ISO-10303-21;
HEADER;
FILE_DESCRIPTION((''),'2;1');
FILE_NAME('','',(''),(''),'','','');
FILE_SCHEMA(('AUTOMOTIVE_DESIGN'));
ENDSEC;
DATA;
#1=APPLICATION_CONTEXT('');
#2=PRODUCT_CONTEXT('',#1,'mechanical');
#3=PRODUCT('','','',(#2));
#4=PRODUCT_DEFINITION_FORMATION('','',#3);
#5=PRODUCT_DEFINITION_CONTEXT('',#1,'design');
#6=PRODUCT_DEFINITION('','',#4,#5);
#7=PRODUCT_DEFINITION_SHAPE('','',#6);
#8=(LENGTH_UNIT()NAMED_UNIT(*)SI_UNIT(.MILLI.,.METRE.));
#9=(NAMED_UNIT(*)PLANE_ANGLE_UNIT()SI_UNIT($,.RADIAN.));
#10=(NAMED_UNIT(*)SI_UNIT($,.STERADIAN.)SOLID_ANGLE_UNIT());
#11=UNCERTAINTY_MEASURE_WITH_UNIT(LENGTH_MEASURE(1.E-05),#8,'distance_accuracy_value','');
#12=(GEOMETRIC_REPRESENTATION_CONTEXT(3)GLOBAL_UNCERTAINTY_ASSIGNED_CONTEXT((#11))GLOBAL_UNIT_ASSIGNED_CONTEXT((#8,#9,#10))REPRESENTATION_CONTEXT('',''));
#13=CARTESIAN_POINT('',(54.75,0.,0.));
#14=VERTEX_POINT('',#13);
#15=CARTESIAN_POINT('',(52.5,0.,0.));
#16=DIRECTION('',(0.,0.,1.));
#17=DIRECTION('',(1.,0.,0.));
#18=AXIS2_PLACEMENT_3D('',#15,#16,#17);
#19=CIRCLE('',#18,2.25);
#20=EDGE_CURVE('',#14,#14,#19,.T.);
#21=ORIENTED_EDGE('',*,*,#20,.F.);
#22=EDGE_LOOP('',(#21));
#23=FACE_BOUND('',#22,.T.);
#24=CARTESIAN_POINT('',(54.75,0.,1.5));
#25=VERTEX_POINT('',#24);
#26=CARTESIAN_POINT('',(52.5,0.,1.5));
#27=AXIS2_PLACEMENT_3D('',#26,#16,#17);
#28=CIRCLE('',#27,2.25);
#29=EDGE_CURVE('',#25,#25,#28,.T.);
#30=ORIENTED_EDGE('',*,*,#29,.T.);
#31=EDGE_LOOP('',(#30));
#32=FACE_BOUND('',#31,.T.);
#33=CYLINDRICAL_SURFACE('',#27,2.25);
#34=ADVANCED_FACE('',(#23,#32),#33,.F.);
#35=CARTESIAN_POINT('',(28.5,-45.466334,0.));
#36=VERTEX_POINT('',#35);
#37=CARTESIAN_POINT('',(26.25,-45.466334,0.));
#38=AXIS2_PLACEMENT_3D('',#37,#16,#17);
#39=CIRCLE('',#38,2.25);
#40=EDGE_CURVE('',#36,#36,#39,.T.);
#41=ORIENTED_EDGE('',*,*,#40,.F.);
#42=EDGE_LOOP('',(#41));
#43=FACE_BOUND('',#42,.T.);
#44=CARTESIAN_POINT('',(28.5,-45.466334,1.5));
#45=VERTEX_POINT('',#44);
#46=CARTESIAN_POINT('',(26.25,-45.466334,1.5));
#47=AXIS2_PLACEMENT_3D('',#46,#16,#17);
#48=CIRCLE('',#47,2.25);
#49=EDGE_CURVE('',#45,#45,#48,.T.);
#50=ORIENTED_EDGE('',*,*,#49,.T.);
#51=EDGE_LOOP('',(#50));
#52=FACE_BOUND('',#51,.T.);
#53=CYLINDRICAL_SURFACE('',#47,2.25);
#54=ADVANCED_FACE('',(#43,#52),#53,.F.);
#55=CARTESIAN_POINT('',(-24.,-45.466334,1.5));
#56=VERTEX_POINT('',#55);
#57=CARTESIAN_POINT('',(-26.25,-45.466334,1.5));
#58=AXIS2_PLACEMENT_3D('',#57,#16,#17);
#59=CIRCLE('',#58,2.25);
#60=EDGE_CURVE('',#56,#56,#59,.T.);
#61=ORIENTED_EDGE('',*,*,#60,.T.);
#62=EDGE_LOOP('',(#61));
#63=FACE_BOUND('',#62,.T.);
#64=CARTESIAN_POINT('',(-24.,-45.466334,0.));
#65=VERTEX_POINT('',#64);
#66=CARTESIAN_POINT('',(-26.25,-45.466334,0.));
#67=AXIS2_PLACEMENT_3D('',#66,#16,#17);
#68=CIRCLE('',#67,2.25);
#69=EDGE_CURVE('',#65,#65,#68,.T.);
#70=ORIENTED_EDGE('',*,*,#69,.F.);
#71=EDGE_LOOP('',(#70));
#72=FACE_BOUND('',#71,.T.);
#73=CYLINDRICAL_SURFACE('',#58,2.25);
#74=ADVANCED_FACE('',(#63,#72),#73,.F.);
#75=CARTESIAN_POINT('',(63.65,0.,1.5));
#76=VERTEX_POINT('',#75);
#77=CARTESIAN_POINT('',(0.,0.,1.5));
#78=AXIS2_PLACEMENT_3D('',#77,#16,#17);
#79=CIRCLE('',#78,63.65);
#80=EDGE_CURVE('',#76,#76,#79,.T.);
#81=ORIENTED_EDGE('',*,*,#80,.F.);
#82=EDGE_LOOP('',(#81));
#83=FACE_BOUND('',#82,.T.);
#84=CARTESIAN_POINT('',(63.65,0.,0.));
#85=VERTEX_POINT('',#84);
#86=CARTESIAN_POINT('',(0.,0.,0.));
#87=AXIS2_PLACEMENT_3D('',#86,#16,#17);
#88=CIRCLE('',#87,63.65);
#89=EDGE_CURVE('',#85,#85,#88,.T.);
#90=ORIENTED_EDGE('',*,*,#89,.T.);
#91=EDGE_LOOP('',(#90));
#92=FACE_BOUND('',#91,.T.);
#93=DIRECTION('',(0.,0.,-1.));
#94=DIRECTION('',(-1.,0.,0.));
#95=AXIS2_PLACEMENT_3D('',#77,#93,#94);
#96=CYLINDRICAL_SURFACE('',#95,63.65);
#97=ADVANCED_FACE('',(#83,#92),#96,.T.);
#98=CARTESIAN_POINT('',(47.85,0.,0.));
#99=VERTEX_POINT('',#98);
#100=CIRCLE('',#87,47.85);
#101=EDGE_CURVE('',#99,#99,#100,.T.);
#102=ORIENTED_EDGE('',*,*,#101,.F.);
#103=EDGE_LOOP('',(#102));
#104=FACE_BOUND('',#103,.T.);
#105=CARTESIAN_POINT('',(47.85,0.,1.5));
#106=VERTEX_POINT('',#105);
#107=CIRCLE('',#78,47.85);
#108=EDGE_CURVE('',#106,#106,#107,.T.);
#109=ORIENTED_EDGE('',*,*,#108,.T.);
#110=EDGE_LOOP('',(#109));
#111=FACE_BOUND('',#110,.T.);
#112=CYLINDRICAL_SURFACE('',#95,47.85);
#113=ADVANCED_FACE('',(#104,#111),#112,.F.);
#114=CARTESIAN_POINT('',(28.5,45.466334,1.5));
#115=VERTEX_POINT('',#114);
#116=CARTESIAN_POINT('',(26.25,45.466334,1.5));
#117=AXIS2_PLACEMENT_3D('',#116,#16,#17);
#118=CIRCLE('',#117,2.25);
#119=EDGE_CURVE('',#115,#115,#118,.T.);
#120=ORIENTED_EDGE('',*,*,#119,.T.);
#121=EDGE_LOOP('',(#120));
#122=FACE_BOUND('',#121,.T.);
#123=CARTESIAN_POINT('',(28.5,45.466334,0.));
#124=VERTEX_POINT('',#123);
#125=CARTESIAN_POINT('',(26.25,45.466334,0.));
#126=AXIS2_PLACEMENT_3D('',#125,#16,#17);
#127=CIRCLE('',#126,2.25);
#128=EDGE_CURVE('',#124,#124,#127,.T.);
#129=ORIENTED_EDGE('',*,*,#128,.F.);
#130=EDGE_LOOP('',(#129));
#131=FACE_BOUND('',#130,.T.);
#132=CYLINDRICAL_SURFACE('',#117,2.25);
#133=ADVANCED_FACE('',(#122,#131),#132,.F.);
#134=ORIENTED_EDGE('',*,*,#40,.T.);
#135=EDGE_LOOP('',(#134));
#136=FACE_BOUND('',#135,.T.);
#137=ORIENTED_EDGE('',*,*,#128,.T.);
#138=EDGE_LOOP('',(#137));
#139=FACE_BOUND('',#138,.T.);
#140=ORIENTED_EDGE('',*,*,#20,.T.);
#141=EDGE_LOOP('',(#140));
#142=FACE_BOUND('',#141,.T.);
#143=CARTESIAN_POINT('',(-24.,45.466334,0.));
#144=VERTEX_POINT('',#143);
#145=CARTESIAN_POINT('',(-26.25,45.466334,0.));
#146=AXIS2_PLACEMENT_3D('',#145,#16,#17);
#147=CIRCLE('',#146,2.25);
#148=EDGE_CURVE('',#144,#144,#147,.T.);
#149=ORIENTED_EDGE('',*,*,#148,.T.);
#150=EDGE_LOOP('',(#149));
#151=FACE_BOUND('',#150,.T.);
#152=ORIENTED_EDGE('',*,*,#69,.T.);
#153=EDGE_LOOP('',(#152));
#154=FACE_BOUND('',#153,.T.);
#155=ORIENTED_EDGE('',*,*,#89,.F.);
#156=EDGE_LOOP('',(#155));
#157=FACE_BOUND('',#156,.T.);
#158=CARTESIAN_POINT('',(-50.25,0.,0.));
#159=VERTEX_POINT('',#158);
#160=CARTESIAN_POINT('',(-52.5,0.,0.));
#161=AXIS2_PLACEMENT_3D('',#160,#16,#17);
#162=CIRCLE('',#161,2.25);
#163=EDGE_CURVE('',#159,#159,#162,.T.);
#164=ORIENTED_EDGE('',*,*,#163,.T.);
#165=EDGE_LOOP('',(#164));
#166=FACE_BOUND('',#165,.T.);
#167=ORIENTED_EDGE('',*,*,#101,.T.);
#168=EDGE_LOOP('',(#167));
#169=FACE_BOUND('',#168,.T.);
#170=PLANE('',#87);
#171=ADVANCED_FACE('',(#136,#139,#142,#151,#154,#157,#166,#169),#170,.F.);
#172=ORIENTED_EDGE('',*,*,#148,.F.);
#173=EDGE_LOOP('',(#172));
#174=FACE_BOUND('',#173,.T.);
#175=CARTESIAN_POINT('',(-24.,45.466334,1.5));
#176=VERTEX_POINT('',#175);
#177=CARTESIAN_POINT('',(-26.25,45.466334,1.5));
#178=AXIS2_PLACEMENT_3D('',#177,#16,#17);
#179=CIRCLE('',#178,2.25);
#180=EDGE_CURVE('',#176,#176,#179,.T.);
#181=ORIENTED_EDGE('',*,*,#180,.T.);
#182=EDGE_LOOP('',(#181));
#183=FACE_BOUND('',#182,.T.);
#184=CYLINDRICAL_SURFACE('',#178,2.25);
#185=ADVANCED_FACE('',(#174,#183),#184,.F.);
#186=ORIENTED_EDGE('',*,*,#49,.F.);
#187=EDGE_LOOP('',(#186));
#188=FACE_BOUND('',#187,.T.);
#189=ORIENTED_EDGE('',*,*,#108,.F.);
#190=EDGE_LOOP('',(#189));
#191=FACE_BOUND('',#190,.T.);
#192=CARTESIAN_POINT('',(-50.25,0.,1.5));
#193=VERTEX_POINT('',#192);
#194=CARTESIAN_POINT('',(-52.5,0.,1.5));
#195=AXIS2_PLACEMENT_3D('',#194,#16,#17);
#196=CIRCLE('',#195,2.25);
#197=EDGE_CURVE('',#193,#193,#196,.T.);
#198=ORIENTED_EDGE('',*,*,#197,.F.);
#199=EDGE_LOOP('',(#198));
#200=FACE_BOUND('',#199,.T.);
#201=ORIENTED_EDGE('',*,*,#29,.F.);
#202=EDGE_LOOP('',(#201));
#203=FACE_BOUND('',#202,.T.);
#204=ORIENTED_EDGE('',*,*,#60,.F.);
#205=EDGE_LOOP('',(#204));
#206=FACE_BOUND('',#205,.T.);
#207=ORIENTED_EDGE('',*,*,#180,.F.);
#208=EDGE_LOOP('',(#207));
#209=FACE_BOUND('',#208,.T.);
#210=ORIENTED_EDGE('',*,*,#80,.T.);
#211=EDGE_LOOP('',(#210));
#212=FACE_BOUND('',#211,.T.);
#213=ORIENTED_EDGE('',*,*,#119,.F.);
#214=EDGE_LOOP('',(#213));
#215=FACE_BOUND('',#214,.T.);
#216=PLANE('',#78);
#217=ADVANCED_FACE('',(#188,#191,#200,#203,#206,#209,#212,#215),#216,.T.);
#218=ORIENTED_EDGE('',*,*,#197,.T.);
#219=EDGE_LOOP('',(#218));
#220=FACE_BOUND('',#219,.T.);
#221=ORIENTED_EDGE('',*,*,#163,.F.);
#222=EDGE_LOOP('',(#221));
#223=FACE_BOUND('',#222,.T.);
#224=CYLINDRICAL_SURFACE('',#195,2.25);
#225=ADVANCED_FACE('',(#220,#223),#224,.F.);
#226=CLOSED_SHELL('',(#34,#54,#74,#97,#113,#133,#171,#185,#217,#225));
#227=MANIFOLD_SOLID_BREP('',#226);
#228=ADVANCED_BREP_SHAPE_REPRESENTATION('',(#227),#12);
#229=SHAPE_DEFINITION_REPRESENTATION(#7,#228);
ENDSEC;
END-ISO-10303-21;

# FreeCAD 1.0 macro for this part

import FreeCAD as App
import Part
import Sketcher
from FreeCAD import Vector
Q = App.Units.Quantity

doc = App.newDocument("Part")
params = doc.addObject("Spreadsheet::Sheet", "Params")
for row, (alias, value) in enumerate([
    ("sketch1_diameter", "127.3 mm"),
    ("sketch1_diameter2", "95.7 mm"),
    ("pad1_length", "1.5 mm"),
    ("sketch2_diameter", "4.5 mm"),
    ("hole_diameter", "4.5 mm"),
], start=1):
    params.set(f"A{row}", alias)
    params.set(f"B{row}", "=" + value)
    params.setAlias(f"B{row}", alias)

body = doc.addObject("PartDesign::Body", "Body")

# Sketch on XY plane
sketch1 = body.newObject("Sketcher::SketchObject", "Sketch")
sketch1.AttachmentSupport = (doc.getObject("XY_Plane"), [""])
sketch1.MapMode = "FlatFace"
sketch1.addGeometry(Part.Circle(Vector(0, 0, 0), Vector(0, 0, 1), 64), False)
sketch1.addGeometry(Part.Circle(Vector(0, 0, 0), Vector(0, 0, 1), 48), False)
sketch1.addConstraint(Sketcher.Constraint("Coincident", 0, 3, -1, 1))
sketch1.addConstraint(Sketcher.Constraint("Coincident", 1, 3, -1, 1))
sketch1.addConstraint(Sketcher.Constraint("Diameter", 0, Q("127.3 mm")))
sketch1.addConstraint(Sketcher.Constraint("Diameter", 1, Q("95.7 mm")))
sketch1.setExpression("Constraints[2]", "Params.sketch1_diameter")
sketch1.setExpression("Constraints[3]", "Params.sketch1_diameter2")
pad1 = body.newObject("PartDesign::Pad", "Pad")
pad1.Profile = sketch1
pad1.setExpression("Length", "Params.pad1_length")

# Sketch on XY plane
sketch2 = body.newObject("Sketcher::SketchObject", "Sketch001")
sketch2.AttachmentSupport = (doc.getObject("XY_Plane"), [""])
sketch2.MapMode = "FlatFace"
sketch2.AttachmentOffset = App.Placement(Vector(0, 0, 1.5), App.Rotation())
sketch2.addGeometry(Part.Circle(Vector(52.5, 0, 0), Vector(0, 0, 1), 2.2), False)
sketch2.addGeometry(Part.Circle(Vector(26.2, -45.5, 0), Vector(0, 0, 1), 2.2), False)
sketch2.addGeometry(Part.Circle(Vector(-26.2, -45.5, 0), Vector(0, 0, 1), 2.2), False)
sketch2.addGeometry(Part.Circle(Vector(-52.5, 0, 0), Vector(0, 0, 1), 2.2), False)
sketch2.addGeometry(Part.Circle(Vector(-26.2, 45.5, 0), Vector(0, 0, 1), 2.2), False)
sketch2.addGeometry(Part.Circle(Vector(26.2, 45.5, 0), Vector(0, 0, 1), 2.2), False)
sketch2.addConstraint(Sketcher.Constraint("Equal", 0, 1))
sketch2.addConstraint(Sketcher.Constraint("Equal", 1, 2))
sketch2.addConstraint(Sketcher.Constraint("Equal", 2, 3))
sketch2.addConstraint(Sketcher.Constraint("Equal", 3, 4))
sketch2.addConstraint(Sketcher.Constraint("Equal", 4, 5))
sketch2.addConstraint(Sketcher.Constraint("Symmetric", 0, 3, 3, 3, -1, 1))
sketch2.addConstraint(Sketcher.Constraint("Symmetric", 1, 3, 4, 3, -1, 1))
sketch2.addConstraint(Sketcher.Constraint("Symmetric", 2, 3, 5, 3, -1, 1))
sketch2.addConstraint(Sketcher.Constraint("Symmetric", 1, 3, 2, 3, -2))
sketch2.addConstraint(Sketcher.Constraint("PointOnObject", 0, 3, -1))
sketch2.addConstraint(Sketcher.Constraint("Diameter", 0, Q("4.5 mm")))
sketch2.addConstraint(Sketcher.Constraint("DistanceX", 3, 3, 0, 3, Q("105 mm")))
sketch2.addConstraint(Sketcher.Constraint("DistanceX", 2, 3, 1, 3, Q("52.5 mm")))
sketch2.addConstraint(Sketcher.Constraint("DistanceY", 1, 3, -1, 1, Q("45.466334 mm")))
sketch2.setExpression("Constraints[10]", "Params.sketch2_diameter")
doc.recompute()
hole = body.newObject("PartDesign::Hole", "Hole")
hole.Profile = sketch2
hole.ThreadType = "None"
hole.setExpression("Diameter", "Params.hole_diameter")
hole.DepthType = "ThroughAll"

doc.recompute()
